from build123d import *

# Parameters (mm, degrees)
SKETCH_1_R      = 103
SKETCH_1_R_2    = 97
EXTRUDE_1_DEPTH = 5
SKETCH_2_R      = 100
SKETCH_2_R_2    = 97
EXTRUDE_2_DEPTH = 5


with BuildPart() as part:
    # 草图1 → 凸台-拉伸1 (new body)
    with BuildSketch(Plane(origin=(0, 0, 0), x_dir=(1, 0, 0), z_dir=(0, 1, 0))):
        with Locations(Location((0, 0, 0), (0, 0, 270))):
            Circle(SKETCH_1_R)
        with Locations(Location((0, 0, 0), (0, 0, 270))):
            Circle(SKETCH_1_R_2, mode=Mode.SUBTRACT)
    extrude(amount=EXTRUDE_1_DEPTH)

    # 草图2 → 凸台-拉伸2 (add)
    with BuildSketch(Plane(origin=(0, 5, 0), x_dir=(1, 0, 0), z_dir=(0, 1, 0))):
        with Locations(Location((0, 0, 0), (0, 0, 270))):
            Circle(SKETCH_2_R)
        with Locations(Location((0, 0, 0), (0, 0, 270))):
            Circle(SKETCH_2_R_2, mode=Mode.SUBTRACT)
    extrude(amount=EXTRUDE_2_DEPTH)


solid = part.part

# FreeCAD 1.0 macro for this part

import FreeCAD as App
import Part
import Sketcher
from FreeCAD import Vector
Q = App.Units.Quantity

doc = App.newDocument("Part")
body = doc.addObject("PartDesign::Body", "Body")

sketch1 = body.newObject("Sketcher::SketchObject", "Sketch")
sketch1.AttachmentSupport = (doc.getObject("XZ_Plane"), [""])
sketch1.MapMode = "FlatFace"
sketch1.addGeometry(Part.Circle(Vector(0, 0, 0), Vector(0, 0, 1), 103), False)
sketch1.addGeometry(Part.Circle(Vector(0, 0, 0), Vector(0, 0, 1), 97), False)
sketch1.addConstraint(Sketcher.Constraint("Coincident", 0, 3, -1, 1))
sketch1.addConstraint(Sketcher.Constraint("Coincident", 1, 3, -1, 1))
sketch1.addConstraint(Sketcher.Constraint("Diameter", 0, Q("206 mm")))
sketch1.addConstraint(Sketcher.Constraint("Diameter", 1, Q("194 mm")))
pad1 = body.newObject("PartDesign::Pad", "Pad")
pad1.Profile = sketch1
pad1.Length = 5
pad1.Reversed = True

sketch2 = body.newObject("Sketcher::SketchObject", "Sketch001")
sketch2.AttachmentSupport = (doc.getObject("XZ_Plane"), [""])
sketch2.MapMode = "FlatFace"
sketch2.AttachmentOffset = App.Placement(Vector(0, 0, -5), App.Rotation())
sketch2.addGeometry(Part.Circle(Vector(0, 0, 0), Vector(0, 0, 1), 100), False)
sketch2.addGeometry(Part.Circle(Vector(0, 0, 0), Vector(0, 0, 1), 97), False)
sketch2.addConstraint(Sketcher.Constraint("Coincident", 0, 3, -1, 1))
sketch2.addConstraint(Sketcher.Constraint("Coincident", 1, 3, -1, 1))
sketch2.addConstraint(Sketcher.Constraint("Diameter", 0, Q("200 mm")))
sketch2.addConstraint(Sketcher.Constraint("Diameter", 1, Q("194 mm")))
pad2 = body.newObject("PartDesign::Pad", "Pad001")
pad2.Profile = sketch2
pad2.Length = 5
pad2.Reversed = True

doc.recompute()
